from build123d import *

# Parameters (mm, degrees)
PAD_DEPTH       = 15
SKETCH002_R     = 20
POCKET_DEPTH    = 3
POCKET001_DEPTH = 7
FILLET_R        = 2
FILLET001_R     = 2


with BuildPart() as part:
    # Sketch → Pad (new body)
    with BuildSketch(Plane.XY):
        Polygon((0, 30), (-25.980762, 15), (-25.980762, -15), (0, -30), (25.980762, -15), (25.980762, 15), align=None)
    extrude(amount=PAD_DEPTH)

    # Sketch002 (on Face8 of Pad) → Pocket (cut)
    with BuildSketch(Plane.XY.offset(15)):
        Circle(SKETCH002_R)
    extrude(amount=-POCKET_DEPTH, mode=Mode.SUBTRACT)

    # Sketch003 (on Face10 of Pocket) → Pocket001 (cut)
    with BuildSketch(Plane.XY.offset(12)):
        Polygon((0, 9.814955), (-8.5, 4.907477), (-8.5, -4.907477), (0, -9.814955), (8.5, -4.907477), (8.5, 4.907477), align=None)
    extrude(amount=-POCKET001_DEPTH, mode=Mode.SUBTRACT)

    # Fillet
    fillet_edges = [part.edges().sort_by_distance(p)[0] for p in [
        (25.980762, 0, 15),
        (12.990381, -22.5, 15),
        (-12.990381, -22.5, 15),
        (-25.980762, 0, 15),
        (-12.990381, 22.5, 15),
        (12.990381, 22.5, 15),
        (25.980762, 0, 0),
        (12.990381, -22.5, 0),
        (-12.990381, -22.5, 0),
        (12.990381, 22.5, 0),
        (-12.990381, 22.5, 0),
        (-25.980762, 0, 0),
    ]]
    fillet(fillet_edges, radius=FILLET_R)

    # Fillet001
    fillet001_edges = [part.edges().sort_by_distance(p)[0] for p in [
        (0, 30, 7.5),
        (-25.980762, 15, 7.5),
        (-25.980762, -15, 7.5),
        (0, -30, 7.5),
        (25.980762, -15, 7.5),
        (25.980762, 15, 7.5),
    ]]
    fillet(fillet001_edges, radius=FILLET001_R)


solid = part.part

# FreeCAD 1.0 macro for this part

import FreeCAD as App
import Part
import Sketcher
from FreeCAD import Vector
Q = App.Units.Quantity


def edges_at(feature, points):
    """Names of the edges that pass closest to the given points."""
    edges = feature.Shape.Edges
    near = lambda p: min(range(len(edges)), key=lambda i: edges[i].distToShape(Part.Vertex(*p))[0])
    return sorted({f"Edge{near(p) + 1}" for p in points})

doc = App.newDocument("Part")
body = doc.addObject("PartDesign::Body", "Body")

# Sketch on XY plane
sketch1 = doc.addObject("Sketcher::SketchObject", "Sketch")
body.addObject(sketch1)
sketch1.AttachmentSupport = (doc.XY_Plane, [""])
sketch1.MapMode = "FlatFace"
sketch1.addGeometry([
    Part.LineSegment(Vector(0, 30, 0), Vector(-26, 15, 0)),  # 0
    Part.LineSegment(Vector(-26, 15, 0), Vector(-26, -15, 0)),  # 1
    Part.LineSegment(Vector(-26, -15, 0), Vector(0, -30, 0)),  # 2
    Part.LineSegment(Vector(0, -30, 0), Vector(26, -15, 0)),  # 3
    Part.LineSegment(Vector(26, -15, 0), Vector(26, 15, 0)),  # 4
    Part.LineSegment(Vector(26, 15, 0), Vector(0, 30, 0)),  # 5
], False)
sketch1.addConstraint([
    Sketcher.Constraint("Coincident", 0, 2, 1, 1),
    Sketcher.Constraint("Coincident", 1, 2, 2, 1),
    Sketcher.Constraint("Coincident", 2, 2, 3, 1),
    Sketcher.Constraint("Coincident", 3, 2, 4, 1),
    Sketcher.Constraint("Coincident", 4, 2, 5, 1),
    Sketcher.Constraint("Coincident", 5, 2, 0, 1),
    Sketcher.Constraint("Vertical", 1),
    Sketcher.Constraint("Vertical", 4),
    Sketcher.Constraint("Symmetric", 0, 2, 3, 2, -1, 1),
    Sketcher.Constraint("Symmetric", 2, 2, 5, 2, -1, 1),
    Sketcher.Constraint("PointOnObject", 2, 2, -2),
    Sketcher.Constraint("Parallel", 2, 5),
    Sketcher.Constraint("Horizontal", 1, 2, 3, 2),
    Sketcher.Constraint("DistanceY", 1, 2, 1, 1, Q("30 mm")),
    Sketcher.Constraint("Angle", 0, Q("-150 deg")),
    Sketcher.Constraint("Distance", 0, Q("30 mm")),
])
pad1 = doc.addObject("PartDesign::Pad", "Pad")
body.addObject(pad1)
pad1.Profile = sketch1
pad1.Length = 15

# Sketch on XY plane
sketch2 = doc.addObject("Sketcher::SketchObject", "Sketch001")
body.addObject(sketch2)
sketch2.AttachmentSupport = (doc.XY_Plane, [""])
sketch2.MapMode = "FlatFace"
sketch2.AttachmentOffset = App.Placement(Vector(0, 0, 15), App.Rotation())
sketch2.addGeometry(Part.Circle(Vector(0, 0, 0), Vector(0, 0, 1), 20), False)
sketch2.addConstraint([
    Sketcher.Constraint("Coincident", 0, 3, -1, 1),
    Sketcher.Constraint("Diameter", 0, Q("40 mm")),
])
pocket1 = doc.addObject("PartDesign::Pocket", "Pocket")
body.addObject(pocket1)
pocket1.Profile = sketch2
pocket1.Length = 3

# Sketch on XY plane
sketch3 = doc.addObject("Sketcher::SketchObject", "Sketch002")
body.addObject(sketch3)
sketch3.AttachmentSupport = (doc.XY_Plane, [""])
sketch3.MapMode = "FlatFace"
sketch3.AttachmentOffset = App.Placement(Vector(0, 0, 12), App.Rotation())
sketch3.addGeometry([
    Part.LineSegment(Vector(0, 10, 0), Vector(-8, 5, 0)),  # 0
    Part.LineSegment(Vector(-8, 5, 0), Vector(-8, -5, 0)),  # 1
    Part.LineSegment(Vector(-8, -5, 0), Vector(0, -10, 0)),  # 2
    Part.LineSegment(Vector(0, -10, 0), Vector(8, -5, 0)),  # 3
    Part.LineSegment(Vector(8, -5, 0), Vector(8, 5, 0)),  # 4
    Part.LineSegment(Vector(8, 5, 0), Vector(0, 10, 0)),  # 5
], False)
sketch3.addConstraint([
    Sketcher.Constraint("Coincident", 0, 2, 1, 1),
    Sketcher.Constraint("Coincident", 1, 2, 2, 1),
    Sketcher.Constraint("Coincident", 2, 2, 3, 1),
    Sketcher.Constraint("Coincident", 3, 2, 4, 1),
    Sketcher.Constraint("Coincident", 4, 2, 5, 1),
    Sketcher.Constraint("Coincident", 5, 2, 0, 1),
    Sketcher.Constraint("Vertical", 1),
    Sketcher.Constraint("Vertical", 4),
    Sketcher.Constraint("Symmetric", 0, 2, 3, 2, -1, 1),
    Sketcher.Constraint("Symmetric", 2, 2, 5, 2, -1, 1),
    Sketcher.Constraint("PointOnObject", 2, 2, -2),
    Sketcher.Constraint("Parallel", 2, 5),
    Sketcher.Constraint("Horizontal", 1, 2, 3, 2),
    Sketcher.Constraint("Angle", 0, Q("-149.999996 deg")),
    Sketcher.Constraint("DistanceX", 1, 2, 3, 2, Q("17 mm")),
    Sketcher.Constraint("DistanceY", 1, 2, 1, 1, Q("9.814954 mm")),
])
pocket2 = doc.addObject("PartDesign::Pocket", "Pocket001")
body.addObject(pocket2)
pocket2.Profile = sketch3
pocket2.Length = 7
doc.recompute()

fillet = doc.addObject("PartDesign::Fillet", "Fillet")
body.addObject(fillet)
fillet.Base = (pocket2, edges_at(pocket2, [
    (25.981, 0, 15),
    (12.99, -22.5, 15),
    (-12.99, -22.5, 15),
    (-25.981, 0, 15),
    (-12.99, 22.5, 15),
    (12.99, 22.5, 15),
    (25.981, 0, 0),
    (12.99, -22.5, 0),
    (-12.99, -22.5, 0),
    (12.99, 22.5, 0),
    (-12.99, 22.5, 0),
    (-25.981, 0, 0),
]))
fillet.Radius = 2
doc.recompute()

fillet2 = doc.addObject("PartDesign::Fillet", "Fillet001")
body.addObject(fillet2)
fillet2.Base = (fillet, edges_at(fillet, [
    (0, 30, 7.5),
    (-25.981, 15, 7.5),
    (-25.981, -15, 7.5),
    (0, -30, 7.5),
    (25.981, -15, 7.5),
    (25.981, 15, 7.5),
]))
fillet2.Radius = 2

doc.recompute()
